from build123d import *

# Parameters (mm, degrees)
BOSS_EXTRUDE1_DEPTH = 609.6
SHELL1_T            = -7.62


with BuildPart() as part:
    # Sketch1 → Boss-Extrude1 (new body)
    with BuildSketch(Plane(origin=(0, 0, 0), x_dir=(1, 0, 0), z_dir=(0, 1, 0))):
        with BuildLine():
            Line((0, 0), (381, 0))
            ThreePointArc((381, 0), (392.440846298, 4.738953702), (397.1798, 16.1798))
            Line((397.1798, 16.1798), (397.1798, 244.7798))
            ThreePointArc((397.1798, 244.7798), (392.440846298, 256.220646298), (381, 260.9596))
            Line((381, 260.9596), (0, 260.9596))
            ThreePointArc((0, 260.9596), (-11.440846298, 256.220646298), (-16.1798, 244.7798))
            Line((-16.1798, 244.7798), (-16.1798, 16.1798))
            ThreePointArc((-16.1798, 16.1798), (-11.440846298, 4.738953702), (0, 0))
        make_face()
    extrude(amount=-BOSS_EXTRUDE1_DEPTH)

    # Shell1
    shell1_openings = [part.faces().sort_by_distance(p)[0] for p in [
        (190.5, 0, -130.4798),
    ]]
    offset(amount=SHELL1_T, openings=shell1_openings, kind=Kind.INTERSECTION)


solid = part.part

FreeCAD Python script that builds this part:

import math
import FreeCAD as App
import Part
import Sketcher

V = App.Vector
Q = App.Units.Quantity


def faces_at(feature, points):
    """Names of the faces that lie closest to the given points."""
    faces = feature.Shape.Faces
    near = lambda p: min(range(len(faces)), key=lambda i: faces[i].distToShape(Part.Vertex(*p))[0])
    return sorted({f"Face{near(p) + 1}" for p in points})

doc = App.newDocument("Part")
params = doc.addObject("Spreadsheet::Sheet", "Params")
for row, (alias, value) in enumerate([
    ("sketch1_width", "15 in"),
    ("sketch1_height", "9 in"),
    ("sketch1_radius", "0.637 in"),
    ("pad1_length", "24 in"),
    ("thickness_wall", "0.3 in"),
], start=1):
    params.set(f"A{row}", alias)
    params.set(f"B{row}", "=" + value)
    params.setAlias(f"B{row}", alias)

body = doc.addObject("PartDesign::Body", "Body")

sketch1 = body.newObject("Sketcher::SketchObject", "Sketch")
sketch1.AttachmentSupport = (doc.getObject("XZ_Plane"), [""])
sketch1.MapMode = "FlatFace"
sketch1.addGeometry(Part.LineSegment(V(0, 0, 0), V(381, 0, 0)), False)
sketch1.addGeometry(Part.ArcOfCircle(Part.Circle(V(381, -16, 0), V(0, 0, 1), 16), math.radians(0), math.radians(90)), False)
sketch1.addGeometry(Part.LineSegment(V(397, -16, 0), V(397, -245, 0)), False)
sketch1.addGeometry(Part.ArcOfCircle(Part.Circle(V(381, -245, 0), V(0, 0, 1), 16), math.radians(-90), math.radians(0)), False)
sketch1.addGeometry(Part.LineSegment(V(381, -261, 0), V(0, -261, 0)), False)
sketch1.addGeometry(Part.ArcOfCircle(Part.Circle(V(0, -245, 0), V(0, 0, 1), 16), math.radians(-180), math.radians(-90)), False)
sketch1.addGeometry(Part.LineSegment(V(-16, -245, 0), V(-16, -16, 0)), False)
sketch1.addGeometry(Part.ArcOfCircle(Part.Circle(V(0, -16, 0), V(0, 0, 1), 16), math.radians(90), math.radians(180)), False)
sketch1.addConstraint(Sketcher.Constraint("Tangent", 0, 2, 1, 2))
sketch1.addConstraint(Sketcher.Constraint("Tangent", 1, 1, 2, 1))
sketch1.addConstraint(Sketcher.Constraint("Tangent", 2, 2, 3, 2))
sketch1.addConstraint(Sketcher.Constraint("Tangent", 3, 1, 4, 1))
sketch1.addConstraint(Sketcher.Constraint("Tangent", 4, 2, 5, 2))
sketch1.addConstraint(Sketcher.Constraint("Tangent", 5, 1, 6, 1))
sketch1.addConstraint(Sketcher.Constraint("Tangent", 6, 2, 7, 2))
sketch1.addConstraint(Sketcher.Constraint("Tangent", 7, 1, 0, 1))
sketch1.addConstraint(Sketcher.Constraint("Horizontal", 0))
sketch1.addConstraint(Sketcher.Constraint("Vertical", 2))
sketch1.addConstraint(Sketcher.Constraint("Horizontal", 4))
sketch1.addConstraint(Sketcher.Constraint("Vertical", 6))
sketch1.addConstraint(Sketcher.Constraint("Coincident", 7, 1, -1, 1))
sketch1.addConstraint(Sketcher.Constraint("Equal", 1, 3))
sketch1.addConstraint(Sketcher.Constraint("Equal", 3, 5))
sketch1.addConstraint(Sketcher.Constraint("Equal", 5, 7))
sketch1.addConstraint(Sketcher.Constraint("DistanceX", 0, 1, 0, 2, Q("15 in")))
sketch1.addConstraint(Sketcher.Constraint("DistanceY", 2, 2, 2, 1, Q("9 in")))
sketch1.addConstraint(Sketcher.Constraint("Radius", 1, Q("0.637 in")))
sketch1.setExpression("Constraints[16]", "Params.sketch1_width")
sketch1.setExpression("Constraints[17]", "Params.sketch1_height")
sketch1.setExpression("Constraints[18]", "Params.sketch1_radius")
pad1 = body.newObject("PartDesign::Pad", "Pad")
pad1.Profile = sketch1
pad1.setExpression("Length", "Params.pad1_length")
doc.recompute()

thickness = body.newObject("PartDesign::Thickness", "Thickness")
thickness.Base = (pad1, faces_at(pad1, [(190.5, 0, -130.48)]))
thickness.setExpression("Value", "Params.thickness_wall")
thickness.Reversed = True
thickness.Join = "Intersection"

doc.recompute()
